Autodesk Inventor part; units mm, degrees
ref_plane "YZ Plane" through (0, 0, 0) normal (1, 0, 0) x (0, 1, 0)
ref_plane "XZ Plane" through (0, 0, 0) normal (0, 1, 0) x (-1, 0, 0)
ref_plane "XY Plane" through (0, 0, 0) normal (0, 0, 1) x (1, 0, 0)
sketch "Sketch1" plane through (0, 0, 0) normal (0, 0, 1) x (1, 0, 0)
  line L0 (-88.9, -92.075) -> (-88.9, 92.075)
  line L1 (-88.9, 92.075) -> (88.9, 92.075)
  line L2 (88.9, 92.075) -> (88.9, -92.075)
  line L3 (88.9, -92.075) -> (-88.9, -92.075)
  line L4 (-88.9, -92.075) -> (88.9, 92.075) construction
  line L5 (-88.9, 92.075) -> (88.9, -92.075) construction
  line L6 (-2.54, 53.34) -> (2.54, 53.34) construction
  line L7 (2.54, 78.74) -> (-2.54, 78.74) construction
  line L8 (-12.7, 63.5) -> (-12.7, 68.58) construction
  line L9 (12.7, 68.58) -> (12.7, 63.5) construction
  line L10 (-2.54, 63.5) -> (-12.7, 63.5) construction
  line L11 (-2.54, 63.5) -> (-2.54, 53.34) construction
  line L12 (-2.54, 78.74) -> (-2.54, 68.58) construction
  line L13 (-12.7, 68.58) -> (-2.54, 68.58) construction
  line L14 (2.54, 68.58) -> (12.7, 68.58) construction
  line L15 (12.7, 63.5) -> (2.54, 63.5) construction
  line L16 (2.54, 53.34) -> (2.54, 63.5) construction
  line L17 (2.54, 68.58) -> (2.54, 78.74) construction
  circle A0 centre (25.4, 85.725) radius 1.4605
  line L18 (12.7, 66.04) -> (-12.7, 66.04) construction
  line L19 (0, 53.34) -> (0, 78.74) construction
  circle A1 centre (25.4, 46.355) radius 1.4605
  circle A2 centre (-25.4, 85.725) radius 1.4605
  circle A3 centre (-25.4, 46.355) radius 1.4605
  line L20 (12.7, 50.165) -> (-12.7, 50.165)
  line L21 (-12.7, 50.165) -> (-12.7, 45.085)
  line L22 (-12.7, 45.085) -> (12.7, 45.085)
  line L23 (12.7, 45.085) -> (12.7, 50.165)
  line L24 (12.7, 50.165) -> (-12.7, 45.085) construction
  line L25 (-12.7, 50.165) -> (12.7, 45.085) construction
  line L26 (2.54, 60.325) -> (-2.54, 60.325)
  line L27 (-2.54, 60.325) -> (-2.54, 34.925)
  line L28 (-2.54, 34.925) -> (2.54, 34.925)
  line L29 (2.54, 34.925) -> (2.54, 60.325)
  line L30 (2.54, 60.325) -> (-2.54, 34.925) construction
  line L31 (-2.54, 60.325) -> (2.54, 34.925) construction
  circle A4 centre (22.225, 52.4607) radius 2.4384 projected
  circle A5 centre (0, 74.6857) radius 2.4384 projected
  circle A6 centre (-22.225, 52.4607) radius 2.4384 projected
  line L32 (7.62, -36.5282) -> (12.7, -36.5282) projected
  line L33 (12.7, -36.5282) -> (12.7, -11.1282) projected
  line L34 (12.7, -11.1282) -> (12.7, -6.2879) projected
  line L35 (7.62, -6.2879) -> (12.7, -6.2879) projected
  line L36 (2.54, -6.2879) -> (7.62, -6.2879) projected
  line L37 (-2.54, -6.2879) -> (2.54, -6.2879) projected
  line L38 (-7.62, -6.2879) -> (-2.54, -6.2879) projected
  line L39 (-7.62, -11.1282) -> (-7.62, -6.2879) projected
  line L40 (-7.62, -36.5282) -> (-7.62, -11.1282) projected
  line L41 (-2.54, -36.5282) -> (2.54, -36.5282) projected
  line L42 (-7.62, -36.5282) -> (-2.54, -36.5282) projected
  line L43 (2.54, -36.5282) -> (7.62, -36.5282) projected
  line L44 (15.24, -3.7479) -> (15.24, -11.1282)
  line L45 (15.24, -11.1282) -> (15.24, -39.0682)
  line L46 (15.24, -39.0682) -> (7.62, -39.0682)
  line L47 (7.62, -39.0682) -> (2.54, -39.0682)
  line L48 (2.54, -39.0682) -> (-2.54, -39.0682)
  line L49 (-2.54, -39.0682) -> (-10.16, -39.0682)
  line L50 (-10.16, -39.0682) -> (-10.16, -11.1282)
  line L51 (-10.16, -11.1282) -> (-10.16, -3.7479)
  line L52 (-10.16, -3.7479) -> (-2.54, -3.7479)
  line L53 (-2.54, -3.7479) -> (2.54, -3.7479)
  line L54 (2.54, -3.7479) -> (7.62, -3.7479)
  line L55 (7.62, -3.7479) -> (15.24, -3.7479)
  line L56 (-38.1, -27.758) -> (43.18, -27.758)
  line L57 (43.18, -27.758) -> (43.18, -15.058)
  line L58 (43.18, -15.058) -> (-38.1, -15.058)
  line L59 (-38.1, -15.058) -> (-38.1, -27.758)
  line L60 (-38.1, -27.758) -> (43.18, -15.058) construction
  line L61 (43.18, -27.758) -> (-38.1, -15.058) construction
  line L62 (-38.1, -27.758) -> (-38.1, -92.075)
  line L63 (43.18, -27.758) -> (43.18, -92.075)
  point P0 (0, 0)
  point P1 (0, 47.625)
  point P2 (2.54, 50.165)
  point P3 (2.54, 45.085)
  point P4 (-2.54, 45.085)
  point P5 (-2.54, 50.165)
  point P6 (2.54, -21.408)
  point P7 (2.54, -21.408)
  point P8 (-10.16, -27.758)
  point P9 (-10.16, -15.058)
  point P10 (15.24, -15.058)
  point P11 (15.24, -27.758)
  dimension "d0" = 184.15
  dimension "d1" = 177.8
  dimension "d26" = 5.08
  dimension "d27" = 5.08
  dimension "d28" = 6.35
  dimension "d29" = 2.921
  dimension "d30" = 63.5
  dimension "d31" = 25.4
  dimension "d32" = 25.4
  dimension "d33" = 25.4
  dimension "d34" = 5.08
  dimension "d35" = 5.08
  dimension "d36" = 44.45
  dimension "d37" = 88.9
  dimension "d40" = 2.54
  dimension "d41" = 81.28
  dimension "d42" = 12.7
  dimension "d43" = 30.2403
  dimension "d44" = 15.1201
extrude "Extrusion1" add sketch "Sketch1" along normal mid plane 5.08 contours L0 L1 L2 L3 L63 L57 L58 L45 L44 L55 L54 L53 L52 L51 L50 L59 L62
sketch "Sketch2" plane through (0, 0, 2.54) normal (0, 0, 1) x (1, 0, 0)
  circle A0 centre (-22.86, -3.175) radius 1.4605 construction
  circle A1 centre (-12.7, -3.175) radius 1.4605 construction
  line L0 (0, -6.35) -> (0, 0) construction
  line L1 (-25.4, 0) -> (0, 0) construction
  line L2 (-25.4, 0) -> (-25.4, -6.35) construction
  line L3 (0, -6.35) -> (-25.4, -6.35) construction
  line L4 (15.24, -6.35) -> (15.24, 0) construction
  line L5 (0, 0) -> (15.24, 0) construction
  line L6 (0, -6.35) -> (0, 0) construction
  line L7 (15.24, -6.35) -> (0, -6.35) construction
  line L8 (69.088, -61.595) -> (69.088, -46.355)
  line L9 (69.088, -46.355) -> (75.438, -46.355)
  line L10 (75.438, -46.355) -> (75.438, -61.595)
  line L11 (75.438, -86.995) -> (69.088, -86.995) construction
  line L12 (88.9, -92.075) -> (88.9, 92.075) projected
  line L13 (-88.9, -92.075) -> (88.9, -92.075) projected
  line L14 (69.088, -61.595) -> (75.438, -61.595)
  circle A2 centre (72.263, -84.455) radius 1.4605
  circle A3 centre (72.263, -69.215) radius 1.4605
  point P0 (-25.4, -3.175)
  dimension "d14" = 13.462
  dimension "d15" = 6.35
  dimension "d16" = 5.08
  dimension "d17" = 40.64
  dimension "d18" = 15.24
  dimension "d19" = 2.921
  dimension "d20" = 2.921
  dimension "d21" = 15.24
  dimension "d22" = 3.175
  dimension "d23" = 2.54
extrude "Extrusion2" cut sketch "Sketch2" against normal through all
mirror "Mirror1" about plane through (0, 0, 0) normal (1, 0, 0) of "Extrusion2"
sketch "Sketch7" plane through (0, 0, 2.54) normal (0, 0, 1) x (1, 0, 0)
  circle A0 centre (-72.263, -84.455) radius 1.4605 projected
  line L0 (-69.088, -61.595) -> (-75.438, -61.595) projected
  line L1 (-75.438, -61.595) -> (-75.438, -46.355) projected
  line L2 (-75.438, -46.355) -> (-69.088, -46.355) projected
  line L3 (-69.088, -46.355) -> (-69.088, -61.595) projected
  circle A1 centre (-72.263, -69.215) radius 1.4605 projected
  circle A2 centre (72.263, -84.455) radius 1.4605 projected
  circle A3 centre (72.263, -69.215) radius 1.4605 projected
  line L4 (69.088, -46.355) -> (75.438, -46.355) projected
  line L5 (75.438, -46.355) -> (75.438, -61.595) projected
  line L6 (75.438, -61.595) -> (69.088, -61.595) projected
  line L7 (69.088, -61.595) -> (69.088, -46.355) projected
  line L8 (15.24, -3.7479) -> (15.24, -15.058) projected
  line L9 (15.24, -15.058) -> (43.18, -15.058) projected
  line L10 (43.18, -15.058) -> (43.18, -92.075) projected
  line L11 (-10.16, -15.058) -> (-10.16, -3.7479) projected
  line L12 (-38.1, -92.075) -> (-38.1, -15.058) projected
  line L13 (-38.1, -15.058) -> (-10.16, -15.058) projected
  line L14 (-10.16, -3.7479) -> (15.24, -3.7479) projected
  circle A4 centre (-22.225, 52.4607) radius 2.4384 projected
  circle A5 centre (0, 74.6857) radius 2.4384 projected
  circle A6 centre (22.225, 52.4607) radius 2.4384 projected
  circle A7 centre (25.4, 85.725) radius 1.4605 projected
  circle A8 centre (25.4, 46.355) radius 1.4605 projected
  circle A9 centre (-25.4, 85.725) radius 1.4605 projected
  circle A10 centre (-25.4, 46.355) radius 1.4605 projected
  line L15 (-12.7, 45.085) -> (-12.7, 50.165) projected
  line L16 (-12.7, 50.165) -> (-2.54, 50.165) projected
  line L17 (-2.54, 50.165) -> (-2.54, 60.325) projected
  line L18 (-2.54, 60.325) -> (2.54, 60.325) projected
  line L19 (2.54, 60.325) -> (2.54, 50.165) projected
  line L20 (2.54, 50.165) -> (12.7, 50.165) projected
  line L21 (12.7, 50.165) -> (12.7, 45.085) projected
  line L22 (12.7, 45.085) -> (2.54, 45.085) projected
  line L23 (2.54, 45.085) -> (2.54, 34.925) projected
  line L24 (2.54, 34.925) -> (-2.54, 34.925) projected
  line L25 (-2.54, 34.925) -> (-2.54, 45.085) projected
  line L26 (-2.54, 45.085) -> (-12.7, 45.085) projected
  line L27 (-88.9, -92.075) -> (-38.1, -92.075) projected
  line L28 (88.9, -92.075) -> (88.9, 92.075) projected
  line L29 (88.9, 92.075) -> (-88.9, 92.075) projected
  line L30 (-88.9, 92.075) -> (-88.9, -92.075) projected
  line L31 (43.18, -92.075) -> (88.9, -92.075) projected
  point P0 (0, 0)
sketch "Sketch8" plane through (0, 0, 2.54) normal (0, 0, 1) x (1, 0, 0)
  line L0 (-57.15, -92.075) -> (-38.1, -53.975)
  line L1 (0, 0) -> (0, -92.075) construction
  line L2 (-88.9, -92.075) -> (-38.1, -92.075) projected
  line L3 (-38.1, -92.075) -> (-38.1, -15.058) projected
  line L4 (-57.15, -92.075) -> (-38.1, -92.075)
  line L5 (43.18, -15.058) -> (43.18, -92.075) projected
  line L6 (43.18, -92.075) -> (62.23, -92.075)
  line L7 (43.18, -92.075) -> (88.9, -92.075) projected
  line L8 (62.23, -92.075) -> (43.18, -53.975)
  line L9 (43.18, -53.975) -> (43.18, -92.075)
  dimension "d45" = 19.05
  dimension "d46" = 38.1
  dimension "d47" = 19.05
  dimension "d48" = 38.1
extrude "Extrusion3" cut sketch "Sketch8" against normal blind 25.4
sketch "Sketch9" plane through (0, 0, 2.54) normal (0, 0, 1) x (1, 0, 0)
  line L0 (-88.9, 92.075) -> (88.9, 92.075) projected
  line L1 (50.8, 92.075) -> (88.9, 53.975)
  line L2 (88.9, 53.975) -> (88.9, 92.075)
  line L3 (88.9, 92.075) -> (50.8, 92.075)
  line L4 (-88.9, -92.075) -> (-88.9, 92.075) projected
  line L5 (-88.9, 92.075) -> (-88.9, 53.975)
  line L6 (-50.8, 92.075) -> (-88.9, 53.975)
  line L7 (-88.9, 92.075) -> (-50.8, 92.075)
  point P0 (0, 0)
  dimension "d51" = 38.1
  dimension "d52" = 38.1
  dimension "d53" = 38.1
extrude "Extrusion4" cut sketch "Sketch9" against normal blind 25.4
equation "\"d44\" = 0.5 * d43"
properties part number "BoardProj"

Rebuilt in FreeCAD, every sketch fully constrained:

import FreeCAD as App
import Part
import Sketcher
Q = App.Units.Quantity

doc = App.newDocument("Part")
body = doc.addObject("PartDesign::Body", "Body")

# Sketch on XY plane
sketch1 = doc.addObject("Sketcher::SketchObject", "Sketch")
body.addObject(sketch1)
sketch1.AttachmentSupport = (doc.XY_Plane, [""])
sketch1.MapMode = "FlatFace"
sketch1.addGeometry([
    Part.LineSegment(App.Vector(-88.9, 92.1, 0), App.Vector(-88.9, -92.1, 0)),  # 0
    Part.LineSegment(App.Vector(-88.9, -92.1, 0), App.Vector(-38.1, -92.1, 0)),  # 1
    Part.LineSegment(App.Vector(-38.1, -92.1, 0), App.Vector(-38.1, -15.1, 0)),  # 2
    Part.LineSegment(App.Vector(-38.1, -15.1, 0), App.Vector(-10.2, -15.1, 0)),  # 3
    Part.LineSegment(App.Vector(-10.2, -15.1, 0), App.Vector(-10.2, -3.7, 0)),  # 4
    Part.LineSegment(App.Vector(-10.2, -3.7, 0), App.Vector(15.2, -3.7, 0)),  # 5
    Part.LineSegment(App.Vector(15.2, -3.7, 0), App.Vector(15.2, -15.1, 0)),  # 6
    Part.LineSegment(App.Vector(15.2, -15.1, 0), App.Vector(43.2, -15.1, 0)),  # 7
    Part.LineSegment(App.Vector(43.2, -15.1, 0), App.Vector(43.2, -92.1, 0)),  # 8
    Part.LineSegment(App.Vector(43.2, -92.1, 0), App.Vector(88.9, -92.1, 0)),  # 9
    Part.LineSegment(App.Vector(88.9, -92.1, 0), App.Vector(88.9, 92.1, 0)),  # 10
    Part.LineSegment(App.Vector(88.9, 92.1, 0), App.Vector(-88.9, 92.1, 0)),  # 11
    Part.Circle(App.Vector(-25.4, 46.4, 0), App.Vector(0, 0, 1), 1.5),  # 12
    Part.Circle(App.Vector(-22.2, 52.5, 0), App.Vector(0, 0, 1), 2.4),  # 13
    Part.Circle(App.Vector(-25.4, 85.7, 0), App.Vector(0, 0, 1), 1.5),  # 14
    Part.LineSegment(App.Vector(2.5, 50.2, 0), App.Vector(12.7, 50.2, 0)),  # 15
    Part.LineSegment(App.Vector(12.7, 50.2, 0), App.Vector(12.7, 45.1, 0)),  # 16
    Part.LineSegment(App.Vector(12.7, 45.1, 0), App.Vector(2.5, 45.1, 0)),  # 17
    Part.LineSegment(App.Vector(2.5, 45.1, 0), App.Vector(2.5, 34.9, 0)),  # 18
    Part.LineSegment(App.Vector(2.5, 34.9, 0), App.Vector(-2.5, 34.9, 0)),  # 19
    Part.LineSegment(App.Vector(-2.5, 34.9, 0), App.Vector(-2.5, 45.1, 0)),  # 20
    Part.LineSegment(App.Vector(-2.5, 45.1, 0), App.Vector(-12.7, 45.1, 0)),  # 21
    Part.LineSegment(App.Vector(-12.7, 45.1, 0), App.Vector(-12.7, 50.2, 0)),  # 22
    Part.LineSegment(App.Vector(-12.7, 50.2, 0), App.Vector(-2.5, 50.2, 0)),  # 23
    Part.LineSegment(App.Vector(-2.5, 50.2, 0), App.Vector(-2.5, 60.3, 0)),  # 24
    Part.LineSegment(App.Vector(-2.5, 60.3, 0), App.Vector(2.5, 60.3, 0)),  # 25
    Part.LineSegment(App.Vector(2.5, 60.3, 0), App.Vector(2.5, 50.2, 0)),  # 26
    Part.Circle(App.Vector(25.4, 46.4, 0), App.Vector(0, 0, 1), 1.5),  # 27
    Part.Circle(App.Vector(22.2, 52.5, 0), App.Vector(0, 0, 1), 2.4),  # 28
    Part.Circle(App.Vector(0, 74.7, 0), App.Vector(0, 0, 1), 2.4),  # 29
    Part.Circle(App.Vector(25.4, 85.7, 0), App.Vector(0, 0, 1), 1.5),  # 30
], False)
sketch1.addConstraint([
    Sketcher.Constraint("Coincident", 0, 2, 1, 1),
    Sketcher.Constraint("Coincident", 1, 2, 2, 1),
    Sketcher.Constraint("Coincident", 2, 2, 3, 1),
    Sketcher.Constraint("Coincident", 3, 2, 4, 1),
    Sketcher.Constraint("Coincident", 4, 2, 5, 1),
    Sketcher.Constraint("Coincident", 5, 2, 6, 1),
    Sketcher.Constraint("Coincident", 6, 2, 7, 1),
    Sketcher.Constraint("Coincident", 7, 2, 8, 1),
    Sketcher.Constraint("Coincident", 8, 2, 9, 1),
    Sketcher.Constraint("Coincident", 9, 2, 10, 1),
    Sketcher.Constraint("Coincident", 10, 2, 11, 1),
    Sketcher.Constraint("Coincident", 11, 2, 0, 1),
    Sketcher.Constraint("Coincident", 15, 2, 16, 1),
    Sketcher.Constraint("Coincident", 16, 2, 17, 1),
    Sketcher.Constraint("Coincident", 17, 2, 18, 1),
    Sketcher.Constraint("Coincident", 18, 2, 19, 1),
    Sketcher.Constraint("Coincident", 19, 2, 20, 1),
    Sketcher.Constraint("Coincident", 20, 2, 21, 1),
    Sketcher.Constraint("Coincident", 21, 2, 22, 1),
    Sketcher.Constraint("Coincident", 22, 2, 23, 1),
    Sketcher.Constraint("Coincident", 23, 2, 24, 1),
    Sketcher.Constraint("Coincident", 24, 2, 25, 1),
    Sketcher.Constraint("Coincident", 25, 2, 26, 1),
    Sketcher.Constraint("Coincident", 26, 2, 15, 1),
    Sketcher.Constraint("Vertical", 0),
    Sketcher.Constraint("Horizontal", 1),
    Sketcher.Constraint("Vertical", 2),
    Sketcher.Constraint("Horizontal", 3),
    Sketcher.Constraint("Vertical", 4),
    Sketcher.Constraint("Horizontal", 5),
    Sketcher.Constraint("Vertical", 6),
    Sketcher.Constraint("Horizontal", 7),
    Sketcher.Constraint("Vertical", 8),
    Sketcher.Constraint("Horizontal", 9),
    Sketcher.Constraint("Vertical", 10),
    Sketcher.Constraint("Horizontal", 11),
    Sketcher.Constraint("Horizontal", 15),
    Sketcher.Constraint("Vertical", 16),
    Sketcher.Constraint("Horizontal", 17),
    Sketcher.Constraint("Vertical", 18),
    Sketcher.Constraint("Horizontal", 19),
    Sketcher.Constraint("Vertical", 20),
    Sketcher.Constraint("Horizontal", 21),
    Sketcher.Constraint("Vertical", 22),
    Sketcher.Constraint("Horizontal", 23),
    Sketcher.Constraint("Vertical", 24),
    Sketcher.Constraint("Horizontal", 25),
    Sketcher.Constraint("Vertical", 26),
    Sketcher.Constraint("Equal", 12, 14),
    Sketcher.Constraint("Equal", 14, 27),
    Sketcher.Constraint("Equal", 13, 28),
    Sketcher.Constraint("Equal", 28, 29),
    Sketcher.Constraint("Equal", 27, 30),
    Sketcher.Constraint("Symmetric", 0, 2, 10, 2, -1, 1),
    Sketcher.Constraint("Symmetric", 12, 3, 27, 3, -2),
    Sketcher.Constraint("Symmetric", 13, 3, 28, 3, -2),
    Sketcher.Constraint("Symmetric", 14, 3, 30, 3, -2),
    Sketcher.Constraint("Symmetric", 17, 2, 20, 2, -2),
    Sketcher.Constraint("Symmetric", 15, 2, 22, 2, -2),
    Sketcher.Constraint("PointOnObject", 29, 3, -2),
    Sketcher.Constraint("Horizontal", 3, 2, 6, 2),
    Sketcher.Constraint("Horizontal", 1, 2, 8, 2),
    Sketcher.Constraint("Vertical", 12, 3, 14, 3),
    Sketcher.Constraint("Vertical", 20, 2, 23, 2),
    Sketcher.Constraint("Vertical", 18, 2, 25, 2),
    Sketcher.Constraint("Equal", 3, 7),
    Sketcher.Constraint("Equal", 25, 16),
    Sketcher.Constraint("Equal", 23, 18),
    Sketcher.Constraint("Equal", 20, 24),
    Sketcher.Constraint("DistanceX", 5, 1, 5, 2, Q("1 in")),
    Sketcher.Constraint("DistanceX", 11, 2, 11, 1, Q("7 in")),
    Sketcher.Constraint("Diameter", 12, Q("0.115 in")),
    Sketcher.Constraint("DistanceX", 19, 2, 19, 1, Q("0.2 in")),
    Sketcher.Constraint("DistanceX", 12, 3, -1, 1, Q("1 in")),
    Sketcher.Constraint("DistanceY", 0, 2, 14, 3, Q("7 in")),
    Sketcher.Constraint("DistanceY", 0, 2, 0, 1, Q("7.25 in")),
    Sketcher.Constraint("DistanceX", -1, 1, 15, 2, Q("0.5 in")),
    Sketcher.Constraint("DistanceX", 1, 2, 12, 3, Q("0.5 in")),
    Sketcher.Constraint("DistanceX", 1, 2, 8, 2, Q("3.2 in")),
    Sketcher.Constraint("DistanceX", 13, 3, 28, 3, Q("1.75 in")),
    Sketcher.Constraint("Diameter", 13, Q("0.192 in")),
    Sketcher.Constraint("DistanceY", 27, 3, 10, 2, Q("1.8 in")),
    Sketcher.Constraint("DistanceY", 15, 2, 30, 3, Q("1.4 in")),
    Sketcher.Constraint("DistanceY", 13, 3, 29, 3, Q("0.875 in")),
    Sketcher.Constraint("DistanceY", 2, 1, 2, 2, Q("77.017 mm")),
    Sketcher.Constraint("DistanceY", 4, 1, 4, 2, Q("11.31 mm")),
    Sketcher.Constraint("DistanceY", -1, 1, 13, 3, Q("52.4607 mm")),
])
pad1 = doc.addObject("PartDesign::Pad", "Pad")
body.addObject(pad1)
pad1.Profile = sketch1
pad1.Length = Q("0.2 in")
pad1.Midplane = True

# Sketch on XY plane
sketch2 = doc.addObject("Sketcher::SketchObject", "Sketch001")
body.addObject(sketch2)
sketch2.AttachmentSupport = (doc.XY_Plane, [""])
sketch2.MapMode = "FlatFace"
sketch2.AttachmentOffset = App.Placement(App.Vector(0, 0, 0.1 * 25.4), App.Rotation())
sketch2.addGeometry([
    Part.LineSegment(App.Vector(69.1, -46.4, 0), App.Vector(69.1, -61.6, 0)),  # 0
    Part.LineSegment(App.Vector(69.1, -61.6, 0), App.Vector(75.4, -61.6, 0)),  # 1
    Part.LineSegment(App.Vector(75.4, -61.6, 0), App.Vector(75.4, -46.4, 0)),  # 2
    Part.LineSegment(App.Vector(75.4, -46.4, 0), App.Vector(69.1, -46.4, 0)),  # 3
    Part.Circle(App.Vector(72.3, -84.5, 0), App.Vector(0, 0, 1), 1.5),  # 4
    Part.Circle(App.Vector(72.3, -69.2, 0), App.Vector(0, 0, 1), 1.5),  # 5
], False)
sketch2.addConstraint([
    Sketcher.Constraint("Coincident", 0, 2, 1, 1),
    Sketcher.Constraint("Coincident", 1, 2, 2, 1),
    Sketcher.Constraint("Coincident", 2, 2, 3, 1),
    Sketcher.Constraint("Coincident", 3, 2, 0, 1),
    Sketcher.Constraint("Vertical", 0),
    Sketcher.Constraint("Horizontal", 1),
    Sketcher.Constraint("Vertical", 2),
    Sketcher.Constraint("Horizontal", 3),
    Sketcher.Constraint("Equal", 4, 5),
    Sketcher.Constraint("Vertical", 4, 3, 5, 3),
    Sketcher.Constraint("Diameter", 4, Q("0.115 in")),
    Sketcher.Constraint("DistanceY", 0, 2, 0, 1, Q("0.6 in")),
    Sketcher.Constraint("DistanceX", 1, 1, 1, 2, Q("0.25 in")),
    Sketcher.Constraint("DistanceY", 4, 3, 5, 3, Q("0.6 in")),
    Sketcher.Constraint("DistanceX", 0, 2, 5, 3, Q("0.125 in")),
    Sketcher.Constraint("DistanceY", 5, 3, 0, 2, Q("0.3 in")),
    Sketcher.Constraint("DistanceX", -1, 1, 0, 2, Q("2.72 in")),
    Sketcher.Constraint("DistanceY", 4, 3, -1, 1, Q("3.325 in")),
])
pocket1 = doc.addObject("PartDesign::Pocket", "Pocket")
body.addObject(pocket1)
pocket1.Profile = sketch2
pocket1.Type = "ThroughAll"
doc.recompute()

mirrored = doc.addObject("PartDesign::Mirrored", "Mirrored")
body.addObject(mirrored)
mirrored.Originals = [pocket1]
mirrored.MirrorPlane = (doc.YZ_Plane, [""])
body.Tip = mirrored

# Sketch on XY plane
sketch3 = doc.addObject("Sketcher::SketchObject", "Sketch002")
body.addObject(sketch3)
sketch3.AttachmentSupport = (doc.XY_Plane, [""])
sketch3.MapMode = "FlatFace"
sketch3.AttachmentOffset = App.Placement(App.Vector(0, 0, 0.1 * 25.4), App.Rotation())
sketch3.addGeometry([
    Part.LineSegment(App.Vector(-38, -54, 0), App.Vector(-57, -92, 0)),  # 0
    Part.LineSegment(App.Vector(-57, -92, 0), App.Vector(-38, -92, 0)),  # 1
    Part.LineSegment(App.Vector(-38, -92, 0), App.Vector(-38, -54, 0)),  # 2
    Part.LineSegment(App.Vector(62, -92, 0), App.Vector(43, -54, 0)),  # 3
    Part.LineSegment(App.Vector(43, -54, 0), App.Vector(43, -92, 0)),  # 4
    Part.LineSegment(App.Vector(43, -92, 0), App.Vector(62, -92, 0)),  # 5
], False)
sketch3.addConstraint([
    Sketcher.Constraint("Coincident", 0, 2, 1, 1),
    Sketcher.Constraint("Coincident", 1, 2, 2, 1),
    Sketcher.Constraint("Coincident", 2, 2, 0, 1),
    Sketcher.Constraint("Coincident", 3, 2, 4, 1),
    Sketcher.Constraint("Coincident", 4, 2, 5, 1),
    Sketcher.Constraint("Coincident", 5, 2, 3, 1),
    Sketcher.Constraint("Horizontal", 1),
    Sketcher.Constraint("Vertical", 2),
    Sketcher.Constraint("Vertical", 4),
    Sketcher.Constraint("Horizontal", 5),
    Sketcher.Constraint("Horizontal", 2, 2, 3, 2),
    Sketcher.Constraint("Horizontal", 1, 2, 4, 2),
    Sketcher.Constraint("Equal", 1, 5),
    Sketcher.Constraint("DistanceY", 2, 1, 2, 2, Q("1.5 in")),
    Sketcher.Constraint("DistanceX", 1, 1, 1, 2, Q("0.75 in")),
    Sketcher.Constraint("DistanceX", 1, 2, -1, 1, Q("1.5 in")),
    Sketcher.Constraint("DistanceX", -1, 1, 3, 2, Q("1.7 in")),
    Sketcher.Constraint("DistanceY", 0, 2, -1, 1, Q("3.625 in")),
])
pocket2 = doc.addObject("PartDesign::Pocket", "Pocket001")
body.addObject(pocket2)
pocket2.Profile = sketch3
pocket2.Length = Q("1 in")

# Sketch on XY plane
sketch4 = doc.addObject("Sketcher::SketchObject", "Sketch003")
body.addObject(sketch4)
sketch4.AttachmentSupport = (doc.XY_Plane, [""])
sketch4.MapMode = "FlatFace"
sketch4.AttachmentOffset = App.Placement(App.Vector(0, 0, 0.1 * 25.4), App.Rotation())
sketch4.addGeometry([
    Part.LineSegment(App.Vector(89, 92, 0), App.Vector(51, 92, 0)),  # 0
    Part.LineSegment(App.Vector(51, 92, 0), App.Vector(89, 54, 0)),  # 1
    Part.LineSegment(App.Vector(89, 54, 0), App.Vector(89, 92, 0)),  # 2
    Part.LineSegment(App.Vector(-51, 92, 0), App.Vector(-89, 92, 0)),  # 3
    Part.LineSegment(App.Vector(-89, 92, 0), App.Vector(-89, 54, 0)),  # 4
    Part.LineSegment(App.Vector(-89, 54, 0), App.Vector(-51, 92, 0)),  # 5
], False)
sketch4.addConstraint([
    Sketcher.Constraint("Coincident", 0, 2, 1, 1),
    Sketcher.Constraint("Coincident", 1, 2, 2, 1),
    Sketcher.Constraint("Coincident", 2, 2, 0, 1),
    Sketcher.Constraint("Coincident", 3, 2, 4, 1),
    Sketcher.Constraint("Coincident", 4, 2, 5, 1),
    Sketcher.Constraint("Coincident", 5, 2, 3, 1),
    Sketcher.Constraint("Horizontal", 0),
    Sketcher.Constraint("Vertical", 2),
    Sketcher.Constraint("Horizontal", 3),
    Sketcher.Constraint("Vertical", 4),
    Sketcher.Constraint("Symmetric", 2, 2, 3, 2, -2),
    Sketcher.Constraint("Perpendicular", 1, 5),
    Sketcher.Constraint("Horizontal", 1, 2, 4, 2),
    Sketcher.Constraint("Equal", 0, 3),
    Sketcher.Constraint("DistanceX", 0, 2, 0, 1, Q("1.5 in")),
    Sketcher.Constraint("DistanceX", -1, 1, 0, 2, Q("2 in")),
    Sketcher.Constraint("DistanceY", -1, 1, 0, 2, Q("3.625 in")),
])
pocket3 = doc.addObject("PartDesign::Pocket", "Pocket002")
body.addObject(pocket3)
pocket3.Profile = sketch4
pocket3.Length = Q("1 in")

doc.recompute()
